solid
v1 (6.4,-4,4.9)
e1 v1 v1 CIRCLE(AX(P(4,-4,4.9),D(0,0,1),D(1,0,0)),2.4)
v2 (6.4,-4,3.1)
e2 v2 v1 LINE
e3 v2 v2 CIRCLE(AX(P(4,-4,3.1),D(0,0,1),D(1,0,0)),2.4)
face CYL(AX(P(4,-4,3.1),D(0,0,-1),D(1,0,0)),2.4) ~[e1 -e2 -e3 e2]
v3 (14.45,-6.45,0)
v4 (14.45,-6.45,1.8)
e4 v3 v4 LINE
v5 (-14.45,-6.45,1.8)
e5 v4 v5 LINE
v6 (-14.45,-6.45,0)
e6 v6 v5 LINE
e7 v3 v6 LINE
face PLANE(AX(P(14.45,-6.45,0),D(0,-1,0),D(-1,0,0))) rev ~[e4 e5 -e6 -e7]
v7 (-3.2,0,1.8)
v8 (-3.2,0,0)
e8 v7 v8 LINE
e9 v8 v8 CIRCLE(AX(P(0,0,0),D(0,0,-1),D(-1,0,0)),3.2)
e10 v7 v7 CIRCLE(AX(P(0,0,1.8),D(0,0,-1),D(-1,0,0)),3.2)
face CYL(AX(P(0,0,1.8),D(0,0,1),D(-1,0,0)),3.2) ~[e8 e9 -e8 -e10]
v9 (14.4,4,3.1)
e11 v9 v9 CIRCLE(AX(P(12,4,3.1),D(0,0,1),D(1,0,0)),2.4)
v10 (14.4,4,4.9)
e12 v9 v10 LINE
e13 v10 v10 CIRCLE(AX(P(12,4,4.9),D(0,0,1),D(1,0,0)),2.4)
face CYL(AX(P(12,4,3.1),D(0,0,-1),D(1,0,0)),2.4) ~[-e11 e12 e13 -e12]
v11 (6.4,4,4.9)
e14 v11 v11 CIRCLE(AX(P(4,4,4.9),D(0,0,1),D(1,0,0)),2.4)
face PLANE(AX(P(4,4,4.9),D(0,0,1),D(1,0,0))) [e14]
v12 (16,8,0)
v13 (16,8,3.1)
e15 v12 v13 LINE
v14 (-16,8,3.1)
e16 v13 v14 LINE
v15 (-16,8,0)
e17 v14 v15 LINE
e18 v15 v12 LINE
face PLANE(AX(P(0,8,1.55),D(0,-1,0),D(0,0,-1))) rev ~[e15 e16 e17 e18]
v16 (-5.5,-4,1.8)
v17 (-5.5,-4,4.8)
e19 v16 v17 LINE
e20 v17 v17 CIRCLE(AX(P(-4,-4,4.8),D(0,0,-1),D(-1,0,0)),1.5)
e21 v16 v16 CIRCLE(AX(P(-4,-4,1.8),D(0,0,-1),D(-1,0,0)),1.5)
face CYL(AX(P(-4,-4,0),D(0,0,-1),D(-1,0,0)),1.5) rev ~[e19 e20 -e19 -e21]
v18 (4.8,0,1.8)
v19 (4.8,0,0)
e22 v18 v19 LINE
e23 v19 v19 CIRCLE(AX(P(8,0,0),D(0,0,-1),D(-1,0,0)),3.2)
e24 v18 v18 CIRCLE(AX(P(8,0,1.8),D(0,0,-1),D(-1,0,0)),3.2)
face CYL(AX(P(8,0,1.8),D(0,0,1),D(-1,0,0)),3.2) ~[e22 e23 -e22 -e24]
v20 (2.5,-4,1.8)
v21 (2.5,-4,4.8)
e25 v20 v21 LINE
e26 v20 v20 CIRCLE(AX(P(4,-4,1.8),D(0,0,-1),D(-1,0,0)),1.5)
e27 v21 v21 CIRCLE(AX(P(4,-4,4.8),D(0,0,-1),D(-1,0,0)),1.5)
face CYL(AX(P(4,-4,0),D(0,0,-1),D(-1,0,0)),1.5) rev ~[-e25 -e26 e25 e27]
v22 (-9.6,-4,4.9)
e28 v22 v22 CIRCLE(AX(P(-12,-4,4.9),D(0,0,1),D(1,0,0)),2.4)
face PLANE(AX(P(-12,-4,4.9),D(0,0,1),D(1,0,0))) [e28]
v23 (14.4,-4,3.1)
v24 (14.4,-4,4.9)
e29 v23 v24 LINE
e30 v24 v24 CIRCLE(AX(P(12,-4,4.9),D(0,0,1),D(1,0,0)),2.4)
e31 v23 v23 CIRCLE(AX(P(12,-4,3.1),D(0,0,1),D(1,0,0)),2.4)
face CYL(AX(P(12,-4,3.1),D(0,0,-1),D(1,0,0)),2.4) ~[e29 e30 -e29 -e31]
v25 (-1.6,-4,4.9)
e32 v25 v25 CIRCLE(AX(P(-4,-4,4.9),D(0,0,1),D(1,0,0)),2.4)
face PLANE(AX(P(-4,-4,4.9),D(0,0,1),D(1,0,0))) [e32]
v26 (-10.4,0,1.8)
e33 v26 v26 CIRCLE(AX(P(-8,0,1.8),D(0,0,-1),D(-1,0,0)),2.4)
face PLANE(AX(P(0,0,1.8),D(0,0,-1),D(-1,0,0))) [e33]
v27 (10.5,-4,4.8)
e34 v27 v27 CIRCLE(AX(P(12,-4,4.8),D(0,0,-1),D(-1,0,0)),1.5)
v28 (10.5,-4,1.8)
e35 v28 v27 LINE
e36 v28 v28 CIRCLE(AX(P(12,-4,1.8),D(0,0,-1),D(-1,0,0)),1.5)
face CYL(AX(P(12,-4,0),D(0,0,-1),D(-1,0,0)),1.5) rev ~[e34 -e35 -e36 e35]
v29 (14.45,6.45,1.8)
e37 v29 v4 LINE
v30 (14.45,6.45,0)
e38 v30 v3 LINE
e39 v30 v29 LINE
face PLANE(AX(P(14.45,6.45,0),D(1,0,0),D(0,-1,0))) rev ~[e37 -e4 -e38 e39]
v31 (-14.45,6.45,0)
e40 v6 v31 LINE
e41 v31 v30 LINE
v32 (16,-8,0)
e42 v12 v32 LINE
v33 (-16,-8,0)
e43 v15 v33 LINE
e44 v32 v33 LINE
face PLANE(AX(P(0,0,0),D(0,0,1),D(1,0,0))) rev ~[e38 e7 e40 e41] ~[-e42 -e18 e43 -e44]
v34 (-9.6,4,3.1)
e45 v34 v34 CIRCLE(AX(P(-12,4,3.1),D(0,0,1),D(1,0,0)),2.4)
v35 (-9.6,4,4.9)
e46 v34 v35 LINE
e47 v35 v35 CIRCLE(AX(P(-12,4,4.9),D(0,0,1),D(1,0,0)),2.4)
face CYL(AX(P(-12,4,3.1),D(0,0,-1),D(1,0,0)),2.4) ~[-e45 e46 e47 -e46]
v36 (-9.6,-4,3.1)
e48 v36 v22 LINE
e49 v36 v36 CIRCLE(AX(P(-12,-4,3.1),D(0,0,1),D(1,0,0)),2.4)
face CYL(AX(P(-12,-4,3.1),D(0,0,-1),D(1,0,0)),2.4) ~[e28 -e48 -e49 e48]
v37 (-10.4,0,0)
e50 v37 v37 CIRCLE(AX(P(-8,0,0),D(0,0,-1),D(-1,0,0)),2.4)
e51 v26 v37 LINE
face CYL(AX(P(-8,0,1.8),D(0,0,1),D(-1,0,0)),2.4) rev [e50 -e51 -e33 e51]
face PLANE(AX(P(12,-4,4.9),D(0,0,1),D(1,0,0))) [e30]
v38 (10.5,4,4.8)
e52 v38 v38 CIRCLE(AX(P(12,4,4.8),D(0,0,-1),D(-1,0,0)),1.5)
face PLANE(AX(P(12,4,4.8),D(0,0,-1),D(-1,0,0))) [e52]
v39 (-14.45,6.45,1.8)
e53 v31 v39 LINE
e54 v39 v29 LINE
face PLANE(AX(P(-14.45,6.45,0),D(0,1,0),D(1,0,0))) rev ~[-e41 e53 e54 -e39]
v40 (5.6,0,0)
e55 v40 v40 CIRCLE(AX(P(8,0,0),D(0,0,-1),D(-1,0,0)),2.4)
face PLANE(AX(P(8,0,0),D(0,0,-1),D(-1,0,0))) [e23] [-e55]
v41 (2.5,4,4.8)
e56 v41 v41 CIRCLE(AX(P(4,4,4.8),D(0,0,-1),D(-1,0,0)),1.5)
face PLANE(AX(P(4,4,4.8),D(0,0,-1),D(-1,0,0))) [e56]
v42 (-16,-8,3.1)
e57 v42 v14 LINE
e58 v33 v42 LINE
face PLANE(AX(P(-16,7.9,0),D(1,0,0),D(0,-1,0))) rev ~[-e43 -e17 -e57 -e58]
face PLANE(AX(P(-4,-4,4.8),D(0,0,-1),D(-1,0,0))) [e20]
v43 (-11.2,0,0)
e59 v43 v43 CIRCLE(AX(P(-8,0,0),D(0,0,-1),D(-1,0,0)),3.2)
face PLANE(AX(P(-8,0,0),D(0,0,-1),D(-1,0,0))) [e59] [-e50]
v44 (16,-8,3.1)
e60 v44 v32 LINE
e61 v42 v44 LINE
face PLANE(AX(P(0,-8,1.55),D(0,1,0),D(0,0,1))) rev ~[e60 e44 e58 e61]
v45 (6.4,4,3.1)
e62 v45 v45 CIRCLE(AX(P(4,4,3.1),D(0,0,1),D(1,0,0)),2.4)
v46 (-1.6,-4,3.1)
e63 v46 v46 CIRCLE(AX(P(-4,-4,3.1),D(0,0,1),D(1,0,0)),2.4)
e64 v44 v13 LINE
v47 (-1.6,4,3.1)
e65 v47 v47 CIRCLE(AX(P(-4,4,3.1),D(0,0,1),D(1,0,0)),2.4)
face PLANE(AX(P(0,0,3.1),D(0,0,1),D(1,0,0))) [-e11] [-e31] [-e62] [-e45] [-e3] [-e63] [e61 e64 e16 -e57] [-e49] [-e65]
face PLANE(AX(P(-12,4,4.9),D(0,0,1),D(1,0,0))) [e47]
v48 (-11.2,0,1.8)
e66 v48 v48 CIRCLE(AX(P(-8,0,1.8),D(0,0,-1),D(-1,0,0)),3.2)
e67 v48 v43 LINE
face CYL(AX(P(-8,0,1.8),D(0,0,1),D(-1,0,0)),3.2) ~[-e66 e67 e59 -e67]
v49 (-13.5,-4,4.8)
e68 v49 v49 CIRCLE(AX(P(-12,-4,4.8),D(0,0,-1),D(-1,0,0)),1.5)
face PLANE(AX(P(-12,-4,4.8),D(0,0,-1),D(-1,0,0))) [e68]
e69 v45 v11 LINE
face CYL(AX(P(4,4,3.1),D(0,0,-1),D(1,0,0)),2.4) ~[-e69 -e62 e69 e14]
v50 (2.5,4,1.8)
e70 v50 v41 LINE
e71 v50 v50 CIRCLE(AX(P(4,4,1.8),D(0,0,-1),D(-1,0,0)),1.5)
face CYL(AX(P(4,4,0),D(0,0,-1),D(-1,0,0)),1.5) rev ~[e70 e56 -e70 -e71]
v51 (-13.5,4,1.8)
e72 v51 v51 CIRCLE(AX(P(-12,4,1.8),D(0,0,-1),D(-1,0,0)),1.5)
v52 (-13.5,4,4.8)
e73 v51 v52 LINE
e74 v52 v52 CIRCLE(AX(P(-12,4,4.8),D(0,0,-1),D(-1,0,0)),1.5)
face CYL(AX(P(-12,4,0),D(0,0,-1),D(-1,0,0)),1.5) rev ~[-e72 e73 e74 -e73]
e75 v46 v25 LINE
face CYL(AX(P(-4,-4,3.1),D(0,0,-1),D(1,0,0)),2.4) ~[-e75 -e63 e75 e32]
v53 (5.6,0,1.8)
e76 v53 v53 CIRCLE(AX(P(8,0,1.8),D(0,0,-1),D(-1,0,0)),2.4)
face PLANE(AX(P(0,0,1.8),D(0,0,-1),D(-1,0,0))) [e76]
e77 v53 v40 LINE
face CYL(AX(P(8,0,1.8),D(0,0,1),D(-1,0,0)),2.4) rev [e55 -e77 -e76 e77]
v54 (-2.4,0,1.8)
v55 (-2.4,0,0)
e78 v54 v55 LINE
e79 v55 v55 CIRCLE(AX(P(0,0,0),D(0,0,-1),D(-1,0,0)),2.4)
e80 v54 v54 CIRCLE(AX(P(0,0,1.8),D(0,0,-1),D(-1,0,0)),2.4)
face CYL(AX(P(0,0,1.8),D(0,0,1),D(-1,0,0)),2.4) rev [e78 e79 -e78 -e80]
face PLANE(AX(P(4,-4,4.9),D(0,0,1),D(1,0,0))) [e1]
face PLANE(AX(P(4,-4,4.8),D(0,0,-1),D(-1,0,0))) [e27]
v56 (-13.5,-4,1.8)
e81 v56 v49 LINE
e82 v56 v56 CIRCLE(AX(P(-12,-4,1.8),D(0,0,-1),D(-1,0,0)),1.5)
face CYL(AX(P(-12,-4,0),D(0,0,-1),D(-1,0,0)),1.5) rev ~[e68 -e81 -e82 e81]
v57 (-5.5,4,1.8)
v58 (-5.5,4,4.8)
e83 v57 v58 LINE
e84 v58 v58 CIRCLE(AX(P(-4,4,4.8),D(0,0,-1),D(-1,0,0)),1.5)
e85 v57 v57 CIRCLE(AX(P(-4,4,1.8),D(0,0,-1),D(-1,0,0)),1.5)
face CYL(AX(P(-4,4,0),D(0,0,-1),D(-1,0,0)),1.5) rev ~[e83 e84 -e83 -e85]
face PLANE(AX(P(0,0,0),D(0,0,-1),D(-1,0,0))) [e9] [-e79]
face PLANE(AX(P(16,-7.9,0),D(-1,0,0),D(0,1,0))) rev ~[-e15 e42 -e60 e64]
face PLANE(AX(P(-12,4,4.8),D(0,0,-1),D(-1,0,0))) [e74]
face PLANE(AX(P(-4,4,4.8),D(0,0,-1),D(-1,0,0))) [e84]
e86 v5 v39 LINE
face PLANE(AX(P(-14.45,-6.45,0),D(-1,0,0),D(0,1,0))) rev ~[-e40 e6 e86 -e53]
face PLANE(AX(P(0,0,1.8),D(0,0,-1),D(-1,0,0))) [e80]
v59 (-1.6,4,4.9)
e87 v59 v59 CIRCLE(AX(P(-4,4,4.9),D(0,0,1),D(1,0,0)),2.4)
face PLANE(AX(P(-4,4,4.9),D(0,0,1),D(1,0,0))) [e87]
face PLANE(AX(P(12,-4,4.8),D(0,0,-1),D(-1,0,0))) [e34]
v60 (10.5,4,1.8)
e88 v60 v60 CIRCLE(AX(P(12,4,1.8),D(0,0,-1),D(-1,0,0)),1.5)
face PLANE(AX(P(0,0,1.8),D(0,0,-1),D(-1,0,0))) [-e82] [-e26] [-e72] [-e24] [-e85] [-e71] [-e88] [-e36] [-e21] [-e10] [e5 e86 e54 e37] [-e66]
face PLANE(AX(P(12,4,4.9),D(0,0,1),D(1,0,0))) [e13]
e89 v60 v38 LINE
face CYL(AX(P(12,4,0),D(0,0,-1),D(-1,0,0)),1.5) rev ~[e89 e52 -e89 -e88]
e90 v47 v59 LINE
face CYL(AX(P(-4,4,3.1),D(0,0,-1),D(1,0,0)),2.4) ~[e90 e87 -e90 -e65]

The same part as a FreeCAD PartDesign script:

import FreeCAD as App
import Part
import Sketcher
from FreeCAD import Vector


def add_polygon(sketch, points):
    """Adds a closed chain of lines whose ends are joined by coincident constraints."""
    first, n = sketch.GeometryCount, len(points)
    for a, b in zip(points, points[1:] + points[:1]):
        sketch.addGeometry(Part.LineSegment(App.Vector(*a, 0), App.Vector(*b, 0)), False)
    for i in range(n):
        sketch.addConstraint(Sketcher.Constraint("Coincident", first + i, 2, first + (i + 1) % n, 1))

doc = App.newDocument("Part")
body = doc.addObject("PartDesign::Body", "Body")

# Sketch on XY plane
sketch1 = body.newObject("Sketcher::SketchObject", "Sketch")
sketch1.AttachmentSupport = (doc.getObject("XY_Plane"), [""])
sketch1.MapMode = "FlatFace"
add_polygon(sketch1, [(-16, 8), (-16, -8), (16, -8), (16, 8)])  # lines 0-3
sketch1.addConstraint(Sketcher.Constraint("Vertical", 0))
sketch1.addConstraint(Sketcher.Constraint("Horizontal", 1))
sketch1.addConstraint(Sketcher.Constraint("Vertical", 2))
sketch1.addConstraint(Sketcher.Constraint("Horizontal", 3))
sketch1.addConstraint(Sketcher.Constraint("Symmetric", 0, 2, 2, 2, -1, 1))
sketch1.addConstraint(Sketcher.Constraint("DistanceX", 0, 2, -1, 1, 16.0))
sketch1.addConstraint(Sketcher.Constraint("DistanceY", 0, 2, 0, 1, 15.8))
pad1 = body.newObject("PartDesign::Pad", "Pad")
pad1.Profile = sketch1
pad1.Length = 3.1

# Sketch on XY plane
sketch2 = body.newObject("Sketcher::SketchObject", "Sketch001")
sketch2.AttachmentSupport = (doc.getObject("XY_Plane"), [""])
sketch2.MapMode = "FlatFace"
add_polygon(sketch2, [(-14, -6), (-14, 6), (14, 6), (14, -6)])  # lines 0-3
sketch2.addConstraint(Sketcher.Constraint("Vertical", 0))
sketch2.addConstraint(Sketcher.Constraint("Horizontal", 1))
sketch2.addConstraint(Sketcher.Constraint("Vertical", 2))
sketch2.addConstraint(Sketcher.Constraint("Horizontal", 3))
sketch2.addConstraint(Sketcher.Constraint("Symmetric", 0, 2, 2, 2, -1, 1))
sketch2.addConstraint(Sketcher.Constraint("DistanceX", 1, 1, 1, 2, 28.9))
sketch2.addConstraint(Sketcher.Constraint("DistanceY", 0, 1, 0, 2, 12.9))
pocket1 = body.newObject("PartDesign::Pocket", "Pocket")
pocket1.Profile = sketch2
pocket1.Length = 1.8
pocket1.Reversed = True

# Sketch on XY plane
sketch3 = body.newObject("Sketcher::SketchObject", "Sketch002")
sketch3.AttachmentSupport = (doc.getObject("XY_Plane"), [""])
sketch3.MapMode = "FlatFace"
sketch3.AttachmentOffset = App.Placement(Vector(0, 0, 3.1), App.Rotation())
sketch3.addGeometry(Part.Circle(Vector(-4, 4, 0), Vector(0, 0, 1), 2.4), False)
sketch3.addGeometry(Part.Circle(Vector(4, 4, 0), Vector(0, 0, 1), 2.4), False)
sketch3.addGeometry(Part.Circle(Vector(12, 4, 0), Vector(0, 0, 1), 2.4), False)
sketch3.addGeometry(Part.Circle(Vector(12, -4, 0), Vector(0, 0, 1), 2.4), False)
sketch3.addGeometry(Part.Circle(Vector(4, -4, 0), Vector(0, 0, 1), 2.4), False)
sketch3.addGeometry(Part.Circle(Vector(-4, -4, 0), Vector(0, 0, 1), 2.4), False)
sketch3.addGeometry(Part.Circle(Vector(-12, -4, 0), Vector(0, 0, 1), 2.4), False)
sketch3.addGeometry(Part.Circle(Vector(-12, 4, 0), Vector(0, 0, 1), 2.4), False)
sketch3.addConstraint(Sketcher.Constraint("Equal", 0, 1))
sketch3.addConstraint(Sketcher.Constraint("Equal", 1, 2))
sketch3.addConstraint(Sketcher.Constraint("Equal", 2, 3))
sketch3.addConstraint(Sketcher.Constraint("Equal", 3, 4))
sketch3.addConstraint(Sketcher.Constraint("Equal", 4, 5))
sketch3.addConstraint(Sketcher.Constraint("Equal", 5, 6))
sketch3.addConstraint(Sketcher.Constraint("Equal", 6, 7))
sketch3.addConstraint(Sketcher.Constraint("Symmetric", 0, 3, 4, 3, -1, 1))
sketch3.addConstraint(Sketcher.Constraint("Symmetric", 1, 3, 5, 3, -1, 1))
sketch3.addConstraint(Sketcher.Constraint("Symmetric", 2, 3, 6, 3, -1, 1))
sketch3.addConstraint(Sketcher.Constraint("Symmetric", 3, 3, 7, 3, -1, 1))
sketch3.addConstraint(Sketcher.Constraint("Symmetric", 0, 3, 1, 3, -2))
sketch3.addConstraint(Sketcher.Constraint("Symmetric", 3, 3, 6, 3, -2))
sketch3.addConstraint(Sketcher.Constraint("Horizontal", 1, 3, 2, 3))
sketch3.addConstraint(Sketcher.Constraint("DistanceX", -1, 1, 2, 3, 12.0))
sketch3.addConstraint(Sketcher.Constraint("Diameter", 0, 4.8))
sketch3.addConstraint(Sketcher.Constraint("DistanceX", 0, 3, -1, 1, 4.0))
sketch3.addConstraint(Sketcher.Constraint("DistanceY", -1, 1, 0, 3, 4.0))
pad2 = body.newObject("PartDesign::Pad", "Pad001")
pad2.Profile = sketch3
pad2.Length = 1.8

# Sketch on XY plane
sketch4 = body.newObject("Sketcher::SketchObject", "Sketch003")
sketch4.AttachmentSupport = (doc.getObject("XY_Plane"), [""])
sketch4.MapMode = "FlatFace"
sketch4.addGeometry(Part.Circle(Vector(-12, 4, 0), Vector(0, 0, 1), 1.5), False)
sketch4.addGeometry(Part.Circle(Vector(-12, -4, 0), Vector(0, 0, 1), 1.5), False)
sketch4.addGeometry(Part.Circle(Vector(-4, -4, 0), Vector(0, 0, 1), 1.5), False)
sketch4.addGeometry(Part.Circle(Vector(-4, 4, 0), Vector(0, 0, 1), 1.5), False)
sketch4.addGeometry(Part.Circle(Vector(4, 4, 0), Vector(0, 0, 1), 1.5), False)
sketch4.addGeometry(Part.Circle(Vector(4, -4, 0), Vector(0, 0, 1), 1.5), False)
sketch4.addGeometry(Part.Circle(Vector(12, -4, 0), Vector(0, 0, 1), 1.5), False)
sketch4.addGeometry(Part.Circle(Vector(12, 4, 0), Vector(0, 0, 1), 1.5), False)
sketch4.addConstraint(Sketcher.Constraint("Equal", 0, 1))
sketch4.addConstraint(Sketcher.Constraint("Equal", 1, 2))
sketch4.addConstraint(Sketcher.Constraint("Equal", 2, 3))
sketch4.addConstraint(Sketcher.Constraint("Equal", 3, 4))
sketch4.addConstraint(Sketcher.Constraint("Equal", 4, 5))
sketch4.addConstraint(Sketcher.Constraint("Equal", 5, 6))
sketch4.addConstraint(Sketcher.Constraint("Equal", 6, 7))
sketch4.addConstraint(Sketcher.Constraint("Symmetric", 2, 3, 4, 3, -1, 1))
sketch4.addConstraint(Sketcher.Constraint("Symmetric", 3, 3, 5, 3, -1, 1))
sketch4.addConstraint(Sketcher.Constraint("Symmetric", 0, 3, 6, 3, -1, 1))
sketch4.addConstraint(Sketcher.Constraint("Symmetric", 1, 3, 7, 3, -1, 1))
sketch4.addConstraint(Sketcher.Constraint("Symmetric", 3, 3, 4, 3, -2))
sketch4.addConstraint(Sketcher.Constraint("Symmetric", 1, 3, 6, 3, -2))
sketch4.addConstraint(Sketcher.Constraint("Horizontal", 1, 3, 2, 3))
sketch4.addConstraint(Sketcher.Constraint("Diameter", 0, 3.0))
sketch4.addConstraint(Sketcher.Constraint("DistanceX", 0, 3, -1, 1, 12.0))
sketch4.addConstraint(Sketcher.Constraint("DistanceY", -1, 1, 0, 3, 4.0))
sketch4.addConstraint(Sketcher.Constraint("DistanceX", 2, 3, -1, 1, 4.0))
pocket2 = body.newObject("PartDesign::Pocket", "Pocket001")
pocket2.Profile = sketch4
pocket2.Length = 4.8
pocket2.Reversed = True

# Sketch on XY plane
sketch5 = body.newObject("Sketcher::SketchObject", "Sketch004")
sketch5.AttachmentSupport = (doc.getObject("XY_Plane"), [""])
sketch5.MapMode = "FlatFace"
sketch5.AttachmentOffset = App.Placement(Vector(0, 0, 1.8), App.Rotation())
sketch5.addGeometry(Part.Circle(Vector(8, 0, 0), Vector(0, 0, 1), 3.2), False)
sketch5.addGeometry(Part.Circle(Vector(8, 0, 0), Vector(0, 0, 1), 2.4), False)
sketch5.addGeometry(Part.Circle(Vector(0, 0, 0), Vector(0, 0, 1), 3.2), False)
sketch5.addGeometry(Part.Circle(Vector(0, 0, 0), Vector(0, 0, 1), 2.4), False)
sketch5.addGeometry(Part.Circle(Vector(-8, 0, 0), Vector(0, 0, 1), 3.2), False)
sketch5.addGeometry(Part.Circle(Vector(-8, 0, 0), Vector(0, 0, 1), 2.4), False)
sketch5.addConstraint(Sketcher.Constraint("Coincident", 2, 3, -1, 1))
sketch5.addConstraint(Sketcher.Constraint("Coincident", 3, 3, -1, 1))
sketch5.addConstraint(Sketcher.Constraint("Coincident", 1, 3, 0, 3))
sketch5.addConstraint(Sketcher.Constraint("Coincident", 5, 3, 4, 3))
sketch5.addConstraint(Sketcher.Constraint("Equal", 0, 2))
sketch5.addConstraint(Sketcher.Constraint("Equal", 1, 3))
sketch5.addConstraint(Sketcher.Constraint("Equal", 2, 4))
sketch5.addConstraint(Sketcher.Constraint("Equal", 3, 5))
sketch5.addConstraint(Sketcher.Constraint("Symmetric", 0, 3, 4, 3, -1, 1))
sketch5.addConstraint(Sketcher.Constraint("PointOnObject", 0, 3, -1))
sketch5.addConstraint(Sketcher.Constraint("Diameter", 0, 6.4))
sketch5.addConstraint(Sketcher.Constraint("Diameter", 1, 4.8))
sketch5.addConstraint(Sketcher.Constraint("DistanceX", -1, 1, 0, 3, 8.0))
pad3 = body.newObject("PartDesign::Pad", "Pad002")
pad3.Profile = sketch5
pad3.Length = 1.8
pad3.Reversed = True

# Sketch on XZ plane
sketch6 = body.newObject("Sketcher::SketchObject", "Sketch005")
sketch6.AttachmentSupport = (doc.getObject("XZ_Plane"), [""])
sketch6.MapMode = "FlatFace"
sketch6.AttachmentOffset = App.Placement(Vector(0, 0, 7.9), App.Rotation())
add_polygon(sketch6, [(-16, 3.1), (-16, 0), (16, 0), (16, 3.1)])  # lines 0-3
sketch6.addConstraint(Sketcher.Constraint("Vertical", 0))
sketch6.addConstraint(Sketcher.Constraint("Horizontal", 1))
sketch6.addConstraint(Sketcher.Constraint("Vertical", 2))
sketch6.addConstraint(Sketcher.Constraint("Horizontal", 3))
sketch6.addConstraint(Sketcher.Constraint("Symmetric", 0, 2, 1, 2, -1, 1))
sketch6.addConstraint(Sketcher.Constraint("DistanceX", 1, 1, 1, 2, 32.0))
sketch6.addConstraint(Sketcher.Constraint("DistanceY", 0, 2, 0, 1, 3.1))
pad4 = body.newObject("PartDesign::Pad", "Pad003")
pad4.Profile = sketch6
pad4.Length = 0.1

# Sketch on XZ plane
sketch7 = body.newObject("Sketcher::SketchObject", "Sketch006")
sketch7.AttachmentSupport = (doc.getObject("XZ_Plane"), [""])
sketch7.MapMode = "FlatFace"
sketch7.AttachmentOffset = App.Placement(Vector(0, 0, -7.9), App.Rotation())
add_polygon(sketch7, [(16, 3.1), (16, 0), (-16, 0), (-16, 3.1)])  # lines 0-3
sketch7.addConstraint(Sketcher.Constraint("Vertical", 0))
sketch7.addConstraint(Sketcher.Constraint("Horizontal", 1))
sketch7.addConstraint(Sketcher.Constraint("Vertical", 2))
sketch7.addConstraint(Sketcher.Constraint("Horizontal", 3))
sketch7.addConstraint(Sketcher.Constraint("Symmetric", 0, 2, 1, 2, -1, 1))
sketch7.addConstraint(Sketcher.Constraint("DistanceX", 1, 2, 1, 1, 32.0))
sketch7.addConstraint(Sketcher.Constraint("DistanceY", 0, 2, 0, 1, 3.1))
pad5 = body.newObject("PartDesign::Pad", "Pad004")
pad5.Profile = sketch7
pad5.Length = 0.1
pad5.Reversed = True

doc.recompute()
